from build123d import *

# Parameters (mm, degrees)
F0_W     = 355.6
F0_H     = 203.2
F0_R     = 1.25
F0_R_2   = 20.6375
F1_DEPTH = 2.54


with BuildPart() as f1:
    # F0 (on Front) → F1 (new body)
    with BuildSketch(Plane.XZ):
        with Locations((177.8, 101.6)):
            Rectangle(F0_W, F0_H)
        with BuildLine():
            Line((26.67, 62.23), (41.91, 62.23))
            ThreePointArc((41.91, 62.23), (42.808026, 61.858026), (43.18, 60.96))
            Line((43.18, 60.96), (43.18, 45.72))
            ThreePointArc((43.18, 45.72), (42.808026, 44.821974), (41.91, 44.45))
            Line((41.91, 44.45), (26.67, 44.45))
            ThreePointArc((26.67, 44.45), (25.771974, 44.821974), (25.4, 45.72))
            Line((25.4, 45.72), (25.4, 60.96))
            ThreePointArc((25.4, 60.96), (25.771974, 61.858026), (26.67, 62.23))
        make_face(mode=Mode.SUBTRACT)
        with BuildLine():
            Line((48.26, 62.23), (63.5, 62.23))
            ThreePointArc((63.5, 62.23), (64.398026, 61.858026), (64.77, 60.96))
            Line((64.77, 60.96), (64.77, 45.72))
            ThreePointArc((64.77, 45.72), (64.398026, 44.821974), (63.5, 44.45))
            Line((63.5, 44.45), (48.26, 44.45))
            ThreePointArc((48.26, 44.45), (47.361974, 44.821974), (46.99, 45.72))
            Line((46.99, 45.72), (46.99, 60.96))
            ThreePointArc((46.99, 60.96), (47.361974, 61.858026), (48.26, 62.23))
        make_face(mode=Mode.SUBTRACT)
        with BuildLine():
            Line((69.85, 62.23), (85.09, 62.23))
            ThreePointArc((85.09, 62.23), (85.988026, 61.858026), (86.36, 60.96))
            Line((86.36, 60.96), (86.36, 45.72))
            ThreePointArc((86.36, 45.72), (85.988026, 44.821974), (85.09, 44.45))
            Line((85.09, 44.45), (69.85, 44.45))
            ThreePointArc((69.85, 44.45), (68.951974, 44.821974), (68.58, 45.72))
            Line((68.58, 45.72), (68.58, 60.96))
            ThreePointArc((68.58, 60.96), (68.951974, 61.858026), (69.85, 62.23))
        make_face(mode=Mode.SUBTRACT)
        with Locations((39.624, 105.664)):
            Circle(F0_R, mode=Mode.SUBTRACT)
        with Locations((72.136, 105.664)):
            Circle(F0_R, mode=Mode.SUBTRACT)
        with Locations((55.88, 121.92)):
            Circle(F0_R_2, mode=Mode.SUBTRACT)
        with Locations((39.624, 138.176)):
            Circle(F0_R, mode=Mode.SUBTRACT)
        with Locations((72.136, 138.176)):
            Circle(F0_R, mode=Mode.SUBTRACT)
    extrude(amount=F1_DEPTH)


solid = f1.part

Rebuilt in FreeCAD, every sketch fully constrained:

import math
import FreeCAD as App
import Part
import Sketcher

V = App.Vector
Q = App.Units.Quantity

doc = App.newDocument("Part")
body = doc.addObject("PartDesign::Body", "Body")

# Sketch on XZ plane
sketch1 = body.newObject("Sketcher::SketchObject", "Sketch")
sketch1.AttachmentSupport = (doc.getObject("XZ_Plane"), [""])
sketch1.MapMode = "FlatFace"
sketch1.addGeometry([
    Part.LineSegment(V(0, 203.2, 0), V(0, 0, 0)),  # 0
    Part.LineSegment(V(0, 0, 0), V(355.6, 0, 0)),  # 1
    Part.LineSegment(V(355.6, 0, 0), V(355.6, 203.2, 0)),  # 2
    Part.LineSegment(V(355.6, 203.2, 0), V(0, 203.2, 0)),  # 3
    Part.ArcOfCircle(Part.Circle(V(26.7, 61, 0), V(0, 0, 1), 1.3), math.radians(90), math.radians(180)),  # 4
    Part.LineSegment(V(26.7, 62.2, 0), V(41.9, 62.2, 0)),  # 5
    Part.ArcOfCircle(Part.Circle(V(41.9, 61, 0), V(0, 0, 1), 1.3), math.radians(0), math.radians(90)),  # 6
    Part.LineSegment(V(43.2, 61, 0), V(43.2, 45.7, 0)),  # 7
    Part.ArcOfCircle(Part.Circle(V(41.9, 45.7, 0), V(0, 0, 1), 1.3), math.radians(-90), math.radians(0)),  # 8
    Part.LineSegment(V(41.9, 44.5, 0), V(26.7, 44.5, 0)),  # 9
    Part.ArcOfCircle(Part.Circle(V(26.7, 45.7, 0), V(0, 0, 1), 1.3), math.radians(180), math.radians(270)),  # 10
    Part.LineSegment(V(25.4, 45.7, 0), V(25.4, 61, 0)),  # 11
    Part.ArcOfCircle(Part.Circle(V(48.3, 61, 0), V(0, 0, 1), 1.3), math.radians(90), math.radians(180)),  # 12
    Part.LineSegment(V(48.3, 62.2, 0), V(63.5, 62.2, 0)),  # 13
    Part.ArcOfCircle(Part.Circle(V(63.5, 61, 0), V(0, 0, 1), 1.3), math.radians(0), math.radians(90)),  # 14
    Part.LineSegment(V(64.8, 61, 0), V(64.8, 45.7, 0)),  # 15
    Part.ArcOfCircle(Part.Circle(V(63.5, 45.7, 0), V(0, 0, 1), 1.3), math.radians(-90), math.radians(0)),  # 16
    Part.LineSegment(V(63.5, 44.5, 0), V(48.3, 44.5, 0)),  # 17
    Part.ArcOfCircle(Part.Circle(V(48.3, 45.7, 0), V(0, 0, 1), 1.3), math.radians(180), math.radians(270)),  # 18
    Part.LineSegment(V(47, 45.7, 0), V(47, 61, 0)),  # 19
    Part.ArcOfCircle(Part.Circle(V(69.8, 61, 0), V(0, 0, 1), 1.3), math.radians(90), math.radians(180)),  # 20
    Part.LineSegment(V(69.8, 62.2, 0), V(85.1, 62.2, 0)),  # 21
    Part.ArcOfCircle(Part.Circle(V(85.1, 61, 0), V(0, 0, 1), 1.3), math.radians(0), math.radians(90)),  # 22
    Part.LineSegment(V(86.4, 61, 0), V(86.4, 45.7, 0)),  # 23
    Part.ArcOfCircle(Part.Circle(V(85.1, 45.7, 0), V(0, 0, 1), 1.3), math.radians(-90), math.radians(0)),  # 24
    Part.LineSegment(V(85.1, 44.5, 0), V(69.8, 44.5, 0)),  # 25
    Part.ArcOfCircle(Part.Circle(V(69.8, 45.7, 0), V(0, 0, 1), 1.3), math.radians(180), math.radians(270)),  # 26
    Part.LineSegment(V(68.6, 45.7, 0), V(68.6, 61, 0)),  # 27
    Part.Circle(V(39.6, 105.7, 0), V(0, 0, 1), 1.2),  # 28
    Part.Circle(V(39.6, 138.2, 0), V(0, 0, 1), 1.2),  # 29
    Part.Circle(V(55.9, 121.9, 0), V(0, 0, 1), 20.6),  # 30
    Part.Circle(V(72.1, 105.7, 0), V(0, 0, 1), 1.2),  # 31
    Part.Circle(V(72.1, 138.2, 0), V(0, 0, 1), 1.2),  # 32
], False)
sketch1.addConstraint([
    Sketcher.Constraint("Coincident", 0, 2, 1, 1),
    Sketcher.Constraint("Coincident", 1, 2, 2, 1),
    Sketcher.Constraint("Coincident", 2, 2, 3, 1),
    Sketcher.Constraint("Coincident", 3, 2, 0, 1),
    Sketcher.Constraint("Tangent", 4, 1, 5, 1),
    Sketcher.Constraint("Tangent", 5, 2, 6, 2),
    Sketcher.Constraint("Tangent", 6, 1, 7, 1),
    Sketcher.Constraint("Tangent", 7, 2, 8, 2),
    Sketcher.Constraint("Tangent", 8, 1, 9, 1),
    Sketcher.Constraint("Tangent", 9, 2, 10, 2),
    Sketcher.Constraint("Tangent", 10, 1, 11, 1),
    Sketcher.Constraint("Tangent", 11, 2, 4, 2),
    Sketcher.Constraint("Tangent", 12, 1, 13, 1),
    Sketcher.Constraint("Tangent", 13, 2, 14, 2),
    Sketcher.Constraint("Tangent", 14, 1, 15, 1),
    Sketcher.Constraint("Tangent", 15, 2, 16, 2),
    Sketcher.Constraint("Tangent", 16, 1, 17, 1),
    Sketcher.Constraint("Tangent", 17, 2, 18, 2),
    Sketcher.Constraint("Tangent", 18, 1, 19, 1),
    Sketcher.Constraint("Tangent", 19, 2, 12, 2),
    Sketcher.Constraint("Tangent", 20, 1, 21, 1),
    Sketcher.Constraint("Tangent", 21, 2, 22, 2),
    Sketcher.Constraint("Tangent", 22, 1, 23, 1),
    Sketcher.Constraint("Tangent", 23, 2, 24, 2),
    Sketcher.Constraint("Tangent", 24, 1, 25, 1),
    Sketcher.Constraint("Tangent", 25, 2, 26, 2),
    Sketcher.Constraint("Tangent", 26, 1, 27, 1),
    Sketcher.Constraint("Tangent", 27, 2, 20, 2),
    Sketcher.Constraint("Vertical", 0),
    Sketcher.Constraint("Horizontal", 1),
    Sketcher.Constraint("Vertical", 2),
    Sketcher.Constraint("Horizontal", 3),
    Sketcher.Constraint("Horizontal", 5),
    Sketcher.Constraint("Vertical", 7),
    Sketcher.Constraint("Horizontal", 9),
    Sketcher.Constraint("Vertical", 11),
    Sketcher.Constraint("Horizontal", 13),
    Sketcher.Constraint("Vertical", 15),
    Sketcher.Constraint("Horizontal", 17),
    Sketcher.Constraint("Vertical", 19),
    Sketcher.Constraint("Horizontal", 21),
    Sketcher.Constraint("Vertical", 23),
    Sketcher.Constraint("Horizontal", 25),
    Sketcher.Constraint("Vertical", 27),
    Sketcher.Constraint("Coincident", 0, 2, -1, 1),
    Sketcher.Constraint("Equal", 4, 6),
    Sketcher.Constraint("Equal", 6, 8),
    Sketcher.Constraint("Equal", 8, 10),
    Sketcher.Constraint("Equal", 10, 12),
    Sketcher.Constraint("Equal", 12, 14),
    Sketcher.Constraint("Equal", 14, 16),
    Sketcher.Constraint("Equal", 16, 18),
    Sketcher.Constraint("Equal", 18, 20),
    Sketcher.Constraint("Equal", 20, 22),
    Sketcher.Constraint("Equal", 22, 24),
    Sketcher.Constraint("Equal", 24, 26),
    Sketcher.Constraint("Equal", 28, 29),
    Sketcher.Constraint("Equal", 29, 31),
    Sketcher.Constraint("Equal", 31, 32),
    Sketcher.Constraint("Horizontal", 6, 3, 12, 3),
    Sketcher.Constraint("Horizontal", 10, 3, 16, 3),
    Sketcher.Constraint("Horizontal", 14, 3, 20, 3),
    Sketcher.Constraint("Horizontal", 18, 3, 24, 3),
    Sketcher.Constraint("Horizontal", 28, 3, 31, 3),
    Sketcher.Constraint("Horizontal", 29, 3, 32, 3),
    Sketcher.Constraint("Vertical", 28, 3, 29, 3),
    Sketcher.Constraint("Vertical", 31, 3, 32, 3),
    Sketcher.Constraint("Equal", 9, 13),
    Sketcher.Constraint("Equal", 17, 21),
    Sketcher.Constraint("Equal", 25, 7),
    Sketcher.Constraint("DistanceX", 1, 1, 1, 2, Q("14 in")),
    Sketcher.Constraint("DistanceY", 0, 2, 0, 1, Q("8 in")),
    Sketcher.Constraint("Radius", 4, Q("0.0499999 in")),
    Sketcher.Constraint("Diameter", 30, Q("1.625 in")),
    Sketcher.Constraint("DistanceX", 5, 1, 5, 2, Q("0.6 in")),
    Sketcher.Constraint("DistanceX", -1, 1, 10, 1, Q("1 in")),
    Sketcher.Constraint("DistanceY", -1, 1, 4, 3, Q("2.4000001 in")),
    Sketcher.Constraint("DistanceX", -1, 1, 12, 3, Q("1.8999999 in")),
    Sketcher.Constraint("DistanceX", -1, 1, 30, 3, Q("2.2 in")),
    Sketcher.Constraint("DistanceY", -1, 1, 30, 3, Q("4.8 in")),
    Sketcher.Constraint("DistanceX", -1, 1, 22, 1, Q("3.4 in")),
    Sketcher.Constraint("Diameter", 28, 2.5),
    Sketcher.Constraint("DistanceX", -1, 1, 28, 3, Q("1.56 in")),
    Sketcher.Constraint("DistanceY", -1, 1, 28, 3, Q("4.16 in")),
    Sketcher.Constraint("DistanceY", -1, 1, 29, 3, Q("5.44 in")),
    Sketcher.Constraint("DistanceX", -1, 1, 31, 3, Q("2.84 in")),
])
pad1 = body.newObject("PartDesign::Pad", "Pad")
pad1.Profile = sketch1
pad1.Length = Q("0.1 in")

doc.recompute()
